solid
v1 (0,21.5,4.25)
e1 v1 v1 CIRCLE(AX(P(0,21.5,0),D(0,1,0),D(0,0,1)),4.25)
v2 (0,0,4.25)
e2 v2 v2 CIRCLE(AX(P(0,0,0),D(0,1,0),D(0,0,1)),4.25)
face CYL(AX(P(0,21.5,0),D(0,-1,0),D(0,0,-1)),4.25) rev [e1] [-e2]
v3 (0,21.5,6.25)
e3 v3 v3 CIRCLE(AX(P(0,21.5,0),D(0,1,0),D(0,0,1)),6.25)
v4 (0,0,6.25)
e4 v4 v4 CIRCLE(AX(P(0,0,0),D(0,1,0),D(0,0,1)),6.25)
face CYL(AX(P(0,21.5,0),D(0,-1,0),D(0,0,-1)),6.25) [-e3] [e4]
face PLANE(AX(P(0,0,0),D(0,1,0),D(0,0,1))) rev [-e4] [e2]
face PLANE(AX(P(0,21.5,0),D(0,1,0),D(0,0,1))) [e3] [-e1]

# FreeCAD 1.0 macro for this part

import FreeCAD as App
import Part
import Sketcher
from FreeCAD import Vector
Q = App.Units.Quantity

doc = App.newDocument("Part")
body = doc.addObject("PartDesign::Body", "Body")

# Sketch on XZ plane
sketch1 = body.newObject("Sketcher::SketchObject", "Sketch")
sketch1.AttachmentSupport = (doc.getObject("XZ_Plane"), [""])
sketch1.MapMode = "FlatFace"
sketch1.addGeometry([
    Part.Circle(Vector(0, 0, 0), Vector(0, 0, 1), 6.25),
    Part.Circle(Vector(0, 0, 0), Vector(0, 0, 1), 4.25),
], False)
sketch1.addConstraint([
    Sketcher.Constraint("Coincident", 0, 3, -1, 1),
    Sketcher.Constraint("Coincident", 1, 3, -1, 1),
    Sketcher.Constraint("Diameter", 0, Q("12.5 mm")),
    Sketcher.Constraint("Diameter", 1, Q("8.5 mm")),
])
pad1 = body.newObject("PartDesign::Pad", "Pad")
pad1.Profile = sketch1
pad1.Length = 21.5
pad1.Reversed = True

doc.recompute()
